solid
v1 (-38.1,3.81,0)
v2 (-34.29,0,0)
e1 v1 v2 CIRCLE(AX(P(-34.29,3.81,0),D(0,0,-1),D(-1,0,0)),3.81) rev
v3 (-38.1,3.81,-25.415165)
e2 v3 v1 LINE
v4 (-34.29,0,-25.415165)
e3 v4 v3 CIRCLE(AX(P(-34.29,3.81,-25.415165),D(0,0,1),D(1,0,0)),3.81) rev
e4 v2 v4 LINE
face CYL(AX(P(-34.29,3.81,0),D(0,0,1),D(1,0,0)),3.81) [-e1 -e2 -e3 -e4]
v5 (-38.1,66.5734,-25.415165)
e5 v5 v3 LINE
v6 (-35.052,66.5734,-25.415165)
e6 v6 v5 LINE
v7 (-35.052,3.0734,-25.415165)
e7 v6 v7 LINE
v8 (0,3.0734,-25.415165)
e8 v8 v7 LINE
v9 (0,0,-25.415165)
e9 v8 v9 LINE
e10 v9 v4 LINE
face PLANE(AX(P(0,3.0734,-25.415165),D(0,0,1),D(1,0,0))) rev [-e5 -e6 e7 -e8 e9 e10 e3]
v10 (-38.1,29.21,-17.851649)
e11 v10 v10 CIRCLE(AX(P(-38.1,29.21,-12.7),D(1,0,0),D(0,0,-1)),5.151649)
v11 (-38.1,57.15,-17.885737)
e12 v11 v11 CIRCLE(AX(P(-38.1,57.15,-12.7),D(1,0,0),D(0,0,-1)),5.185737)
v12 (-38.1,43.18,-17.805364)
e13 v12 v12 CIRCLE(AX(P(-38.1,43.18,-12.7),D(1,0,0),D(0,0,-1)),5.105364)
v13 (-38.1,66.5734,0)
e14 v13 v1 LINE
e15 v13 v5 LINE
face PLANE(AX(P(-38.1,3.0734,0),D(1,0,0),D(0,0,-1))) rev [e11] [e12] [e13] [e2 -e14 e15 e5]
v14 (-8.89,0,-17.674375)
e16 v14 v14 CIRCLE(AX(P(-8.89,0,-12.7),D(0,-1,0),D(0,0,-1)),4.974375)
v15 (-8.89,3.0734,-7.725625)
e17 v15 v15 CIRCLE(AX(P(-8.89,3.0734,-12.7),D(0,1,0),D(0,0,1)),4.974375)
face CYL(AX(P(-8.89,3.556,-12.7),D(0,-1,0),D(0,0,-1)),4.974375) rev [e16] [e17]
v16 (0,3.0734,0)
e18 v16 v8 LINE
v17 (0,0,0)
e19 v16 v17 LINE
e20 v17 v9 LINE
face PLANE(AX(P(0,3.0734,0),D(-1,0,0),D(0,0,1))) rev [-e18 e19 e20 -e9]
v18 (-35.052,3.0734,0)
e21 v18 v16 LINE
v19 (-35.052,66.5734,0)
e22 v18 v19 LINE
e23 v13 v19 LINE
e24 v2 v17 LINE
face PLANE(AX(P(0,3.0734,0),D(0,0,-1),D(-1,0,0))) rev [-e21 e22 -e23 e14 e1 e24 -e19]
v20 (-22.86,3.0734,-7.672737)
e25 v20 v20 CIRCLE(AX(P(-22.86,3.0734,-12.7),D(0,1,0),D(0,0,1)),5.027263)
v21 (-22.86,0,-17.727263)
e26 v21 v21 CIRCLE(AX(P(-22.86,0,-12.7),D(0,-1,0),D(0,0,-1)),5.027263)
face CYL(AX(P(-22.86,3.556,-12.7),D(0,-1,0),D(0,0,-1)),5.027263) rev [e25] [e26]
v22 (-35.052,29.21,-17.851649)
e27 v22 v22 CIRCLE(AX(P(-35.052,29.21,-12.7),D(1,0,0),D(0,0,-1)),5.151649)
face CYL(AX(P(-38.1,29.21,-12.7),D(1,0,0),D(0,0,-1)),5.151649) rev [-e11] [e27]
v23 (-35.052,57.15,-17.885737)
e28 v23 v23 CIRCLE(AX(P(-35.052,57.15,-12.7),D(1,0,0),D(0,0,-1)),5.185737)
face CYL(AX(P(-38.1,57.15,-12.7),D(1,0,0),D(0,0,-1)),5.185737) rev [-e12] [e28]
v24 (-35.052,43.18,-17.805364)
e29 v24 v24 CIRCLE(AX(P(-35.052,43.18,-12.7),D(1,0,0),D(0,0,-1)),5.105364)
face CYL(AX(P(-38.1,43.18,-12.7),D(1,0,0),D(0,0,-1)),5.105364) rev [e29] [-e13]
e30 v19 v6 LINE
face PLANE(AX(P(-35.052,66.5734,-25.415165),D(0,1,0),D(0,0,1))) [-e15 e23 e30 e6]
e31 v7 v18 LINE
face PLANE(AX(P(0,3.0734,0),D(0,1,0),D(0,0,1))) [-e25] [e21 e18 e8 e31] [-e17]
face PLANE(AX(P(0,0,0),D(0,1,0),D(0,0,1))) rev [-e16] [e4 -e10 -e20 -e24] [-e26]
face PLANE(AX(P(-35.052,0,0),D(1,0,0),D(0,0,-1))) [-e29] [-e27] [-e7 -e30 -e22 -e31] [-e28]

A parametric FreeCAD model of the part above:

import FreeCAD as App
import Part
import Sketcher
from FreeCAD import Vector
Q = App.Units.Quantity


def edges_at(feature, points):
    """Names of the edges that pass closest to the given points."""
    edges = feature.Shape.Edges
    near = lambda p: min(range(len(edges)), key=lambda i: edges[i].distToShape(Part.Vertex(*p))[0])
    return sorted({f"Edge{near(p) + 1}" for p in points})


def add_polygon(sketch, points):
    """Adds a closed chain of lines whose ends are joined by coincident constraints."""
    first, n = sketch.GeometryCount, len(points)
    for a, b in zip(points, points[1:] + points[:1]):
        sketch.addGeometry(Part.LineSegment(App.Vector(*a, 0), App.Vector(*b, 0)), False)
    for i in range(n):
        sketch.addConstraint(Sketcher.Constraint("Coincident", first + i, 2, first + (i + 1) % n, 1))

doc = App.newDocument("Part")
params = doc.addObject("Spreadsheet::Sheet", "Params")
for row, (alias, value) in enumerate([
    ("sketch1_width", "1.5 in"),
    ("pad1_length", "0.121 in"),
    ("sketch2_width", "2.5 in"),
    ("pad2_length", "0.12 in"),
    ("sketch3_width", "2.5 in"),
    ("pocket1_length", "0.12 in"),
    ("fillet_radius", "0.15 in"),
    ("pocket2_length", "0.12 in"),
    ("pocket3_length", "0.14 in"),
], start=1):
    params.set(f"A{row}", alias)
    params.set(f"B{row}", "=" + value)
    params.setAlias(f"B{row}", alias)

body = doc.addObject("PartDesign::Body", "Body")

# Sketch on XZ plane
sketch1 = body.newObject("Sketcher::SketchObject", "Sketch")
sketch1.AttachmentSupport = (doc.getObject("XZ_Plane"), [""])
sketch1.MapMode = "FlatFace"
add_polygon(sketch1, [(-38, -25), (-38, 0), (0, 0), (0, -25)])  # lines 0-3
sketch1.addConstraint(Sketcher.Constraint("Vertical", 0))
sketch1.addConstraint(Sketcher.Constraint("Horizontal", 1))
sketch1.addConstraint(Sketcher.Constraint("Vertical", 2))
sketch1.addConstraint(Sketcher.Constraint("Horizontal", 3))
sketch1.addConstraint(Sketcher.Constraint("Coincident", 1, 2, -1, 1))
sketch1.addConstraint(Sketcher.Constraint("DistanceX", 1, 1, 1, 2, Q("1.5 in")))
sketch1.addConstraint(Sketcher.Constraint("DistanceY", 0, 1, 0, 2, Q("25.415165 mm")))
sketch1.setExpression("Constraints[9]", "Params.sketch1_width")
pad1 = body.newObject("PartDesign::Pad", "Pad")
pad1.Profile = sketch1
pad1.setExpression("Length", "Params.pad1_length")
pad1.Reversed = True

# Sketch on YZ plane
sketch2 = body.newObject("Sketcher::SketchObject", "Sketch001")
sketch2.AttachmentSupport = (doc.getObject("YZ_Plane"), [""])
sketch2.MapMode = "FlatFace"
sketch2.AttachmentOffset = App.Placement(Vector(0, 0, -1.5 * 25.4), App.Rotation())
add_polygon(sketch2, [(67, -25), (3, -25), (3, 3), (67, 3)])  # lines 0-3
sketch2.addConstraint(Sketcher.Constraint("Horizontal", 0))
sketch2.addConstraint(Sketcher.Constraint("Vertical", 1))
sketch2.addConstraint(Sketcher.Constraint("Horizontal", 2))
sketch2.addConstraint(Sketcher.Constraint("Vertical", 3))
sketch2.addConstraint(Sketcher.Constraint("DistanceX", 0, 2, 0, 1, Q("2.5 in")))
sketch2.addConstraint(Sketcher.Constraint("DistanceX", -1, 1, 0, 2, Q("0.121 in")))
sketch2.addConstraint(Sketcher.Constraint("DistanceY", 1, 1, 1, 2, Q("28.174522 mm")))
sketch2.addConstraint(Sketcher.Constraint("DistanceY", 0, 2, -1, 1, Q("25.415165 mm")))
sketch2.setExpression("Constraints[8]", "Params.sketch2_width")
pad2 = body.newObject("PartDesign::Pad", "Pad001")
pad2.Profile = sketch2
pad2.setExpression("Length", "Params.pad2_length")

# Sketch on YZ plane
sketch3 = body.newObject("Sketcher::SketchObject", "Sketch002")
sketch3.AttachmentSupport = (doc.getObject("YZ_Plane"), [""])
sketch3.MapMode = "FlatFace"
sketch3.AttachmentOffset = App.Placement(Vector(0, 0, -1.38 * 25.4), App.Rotation())
add_polygon(sketch3, [(66.6, 2.8), (3.1, 2.8), (3.1, 0), (66.6, 0)])  # lines 0-3
sketch3.addConstraint(Sketcher.Constraint("Horizontal", 0))
sketch3.addConstraint(Sketcher.Constraint("Vertical", 1))
sketch3.addConstraint(Sketcher.Constraint("Horizontal", 2))
sketch3.addConstraint(Sketcher.Constraint("Vertical", 3))
sketch3.addConstraint(Sketcher.Constraint("PointOnObject", 1, 2, -1))
sketch3.addConstraint(Sketcher.Constraint("DistanceX", 0, 2, 0, 1, Q("2.5 in")))
sketch3.addConstraint(Sketcher.Constraint("DistanceX", -1, 1, 0, 2, Q("0.121 in")))
sketch3.addConstraint(Sketcher.Constraint("DistanceY", 1, 2, 1, 1, Q("2.759357 mm")))
sketch3.setExpression("Constraints[9]", "Params.sketch3_width")
pocket1 = body.newObject("PartDesign::Pocket", "Pocket")
pocket1.Profile = sketch3
pocket1.setExpression("Length", "Params.pocket1_length")
doc.recompute()

fillet = body.newObject("PartDesign::Fillet", "Fillet")
fillet.Base = (pocket1, edges_at(pocket1, [(-38.1, 0, -12.708)]))
fillet.setExpression("Radius", "Params.fillet_radius")

# Sketch on YZ plane
sketch4 = body.newObject("Sketcher::SketchObject", "Sketch003")
sketch4.AttachmentSupport = (doc.getObject("YZ_Plane"), [""])
sketch4.MapMode = "FlatFace"
sketch4.AttachmentOffset = App.Placement(Vector(0, 0, -1.38 * 25.4), App.Rotation())
sketch4.addGeometry(Part.Circle(Vector(57, -13, 0), Vector(0, 0, 1), 5), False)
sketch4.addGeometry(Part.Circle(Vector(43, -13, 0), Vector(0, 0, 1), 5), False)
sketch4.addGeometry(Part.Circle(Vector(29, -13, 0), Vector(0, 0, 1), 5), False)
sketch4.addConstraint(Sketcher.Constraint("Horizontal", 0, 3, 1, 3))
sketch4.addConstraint(Sketcher.Constraint("Horizontal", 1, 3, 2, 3))
sketch4.addConstraint(Sketcher.Constraint("DistanceY", 0, 3, -1, 1, Q("0.5 in")))
sketch4.addConstraint(Sketcher.Constraint("DistanceX", -1, 1, 1, 3, Q("1.7 in")))
sketch4.addConstraint(Sketcher.Constraint("DistanceX", 2, 3, 0, 3, Q("1.1 in")))
sketch4.addConstraint(Sketcher.Constraint("DistanceX", -1, 1, 0, 3, Q("2.25 in")))
sketch4.addConstraint(Sketcher.Constraint("Diameter", 1, Q("10.210729 mm")))
sketch4.addConstraint(Sketcher.Constraint("Diameter", 0, Q("10.371473 mm")))
sketch4.addConstraint(Sketcher.Constraint("Diameter", 2, Q("10.303298 mm")))
pocket2 = body.newObject("PartDesign::Pocket", "Pocket001")
pocket2.Profile = sketch4
pocket2.setExpression("Length", "Params.pocket2_length")

# Sketch on XZ plane
sketch5 = body.newObject("Sketcher::SketchObject", "Sketch004")
sketch5.AttachmentSupport = (doc.getObject("XZ_Plane"), [""])
sketch5.MapMode = "FlatFace"
sketch5.addGeometry(Part.Circle(Vector(-22.9, -12.7, 0), Vector(0, 0, 1), 5), False)
sketch5.addGeometry(Part.Circle(Vector(-8.9, -12.7, 0), Vector(0, 0, 1), 5), False)
sketch5.addConstraint(Sketcher.Constraint("Horizontal", 0, 3, 1, 3))
sketch5.addConstraint(Sketcher.Constraint("DistanceX", 0, 3, -1, 1, Q("0.9 in")))
sketch5.addConstraint(Sketcher.Constraint("DistanceY", 0, 3, -1, 1, Q("0.5 in")))
sketch5.addConstraint(Sketcher.Constraint("DistanceX", 1, 3, -1, 1, Q("0.35 in")))
sketch5.addConstraint(Sketcher.Constraint("Diameter", 1, Q("9.94875 mm")))
sketch5.addConstraint(Sketcher.Constraint("Diameter", 0, Q("10.054525 mm")))
pocket3 = body.newObject("PartDesign::Pocket", "Pocket002")
pocket3.Profile = sketch5
pocket3.setExpression("Length", "Params.pocket3_length")

doc.recompute()
